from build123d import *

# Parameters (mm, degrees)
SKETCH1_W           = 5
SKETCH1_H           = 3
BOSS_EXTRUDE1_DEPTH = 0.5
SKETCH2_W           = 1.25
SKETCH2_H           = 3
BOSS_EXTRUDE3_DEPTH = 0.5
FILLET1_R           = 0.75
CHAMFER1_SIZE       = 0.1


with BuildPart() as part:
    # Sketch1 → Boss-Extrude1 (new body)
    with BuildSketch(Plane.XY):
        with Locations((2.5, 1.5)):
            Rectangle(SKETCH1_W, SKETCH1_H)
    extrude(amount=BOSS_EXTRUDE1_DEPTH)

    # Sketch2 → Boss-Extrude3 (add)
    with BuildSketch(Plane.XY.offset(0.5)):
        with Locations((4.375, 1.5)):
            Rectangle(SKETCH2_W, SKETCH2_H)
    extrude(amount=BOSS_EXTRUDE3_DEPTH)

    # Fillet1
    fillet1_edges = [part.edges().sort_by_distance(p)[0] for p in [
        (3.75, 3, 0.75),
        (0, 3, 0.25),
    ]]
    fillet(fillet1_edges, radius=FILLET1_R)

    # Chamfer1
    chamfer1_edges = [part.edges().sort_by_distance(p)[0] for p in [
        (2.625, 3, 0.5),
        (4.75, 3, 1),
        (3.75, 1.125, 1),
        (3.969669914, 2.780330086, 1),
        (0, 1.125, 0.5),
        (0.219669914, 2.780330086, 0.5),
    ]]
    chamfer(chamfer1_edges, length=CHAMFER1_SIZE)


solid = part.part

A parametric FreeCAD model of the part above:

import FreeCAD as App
import Part
import Sketcher
from FreeCAD import Vector
Q = App.Units.Quantity


def edges_at(feature, points):
    """Names of the edges that pass closest to the given points."""
    edges = feature.Shape.Edges
    near = lambda p: min(range(len(edges)), key=lambda i: edges[i].distToShape(Part.Vertex(*p))[0])
    return sorted({f"Edge{near(p) + 1}" for p in points})


def add_polygon(sketch, points):
    """Adds a closed chain of lines whose ends are joined by coincident constraints."""
    first, n = sketch.GeometryCount, len(points)
    for a, b in zip(points, points[1:] + points[:1]):
        sketch.addGeometry(Part.LineSegment(App.Vector(*a, 0), App.Vector(*b, 0)), False)
    for i in range(n):
        sketch.addConstraint(Sketcher.Constraint("Coincident", first + i, 2, first + (i + 1) % n, 1))

doc = App.newDocument("Part")
body = doc.addObject("PartDesign::Body", "Body")

# Sketch on XY plane
sketch1 = doc.addObject("Sketcher::SketchObject", "Sketch")
body.addObject(sketch1)
sketch1.AttachmentSupport = (doc.XY_Plane, [""])
sketch1.MapMode = "FlatFace"
add_polygon(sketch1, [(0, 3), (0, 0), (5, 0), (5, 3)])  # lines 0-3
sketch1.addConstraint([
    Sketcher.Constraint("Vertical", 0),
    Sketcher.Constraint("Horizontal", 1),
    Sketcher.Constraint("Vertical", 2),
    Sketcher.Constraint("Horizontal", 3),
    Sketcher.Constraint("Coincident", 0, 2, -1, 1),
    Sketcher.Constraint("DistanceX", 1, 1, 1, 2, Q("5 mm")),
    Sketcher.Constraint("DistanceY", 0, 2, 0, 1, Q("3 mm")),
])
pad1 = doc.addObject("PartDesign::Pad", "Pad")
body.addObject(pad1)
pad1.Profile = sketch1
pad1.Length = 0.5

# Sketch on XY plane
sketch2 = doc.addObject("Sketcher::SketchObject", "Sketch001")
body.addObject(sketch2)
sketch2.AttachmentSupport = (doc.XY_Plane, [""])
sketch2.MapMode = "FlatFace"
sketch2.AttachmentOffset = App.Placement(Vector(0, 0, 0.5), App.Rotation())
add_polygon(sketch2, [(3.8, 3), (3.8, 0), (5, 0), (5, 3)])  # lines 0-3
sketch2.addConstraint([
    Sketcher.Constraint("Vertical", 0),
    Sketcher.Constraint("Horizontal", 1),
    Sketcher.Constraint("Vertical", 2),
    Sketcher.Constraint("Horizontal", 3),
    Sketcher.Constraint("PointOnObject", 0, 2, -1),
    Sketcher.Constraint("DistanceY", 0, 2, 0, 1, Q("3 mm")),
    Sketcher.Constraint("DistanceX", -1, 1, 1, 2, Q("5 mm")),
    Sketcher.Constraint("DistanceX", 1, 1, 1, 2, Q("1.25 mm")),
])
pad2 = doc.addObject("PartDesign::Pad", "Pad001")
body.addObject(pad2)
pad2.Profile = sketch2
pad2.Length = 0.5
doc.recompute()

fillet = doc.addObject("PartDesign::Fillet", "Fillet")
body.addObject(fillet)
fillet.Base = (pad2, edges_at(pad2, [(3.75, 3, 0.75), (0, 3, 0.25)]))
fillet.Radius = 0.75
doc.recompute()

chamfer = doc.addObject("PartDesign::Chamfer", "Chamfer")
body.addObject(chamfer)
chamfer.Base = (fillet, edges_at(fillet, [
    (2.625, 3, 0.5),
    (4.75, 3, 1),
    (3.75, 1.125, 1),
    (3.97, 2.78, 1),
    (0, 1.125, 0.5),
    (0.22, 2.78, 0.5),
]))
chamfer.Size = 0.1

doc.recompute()
